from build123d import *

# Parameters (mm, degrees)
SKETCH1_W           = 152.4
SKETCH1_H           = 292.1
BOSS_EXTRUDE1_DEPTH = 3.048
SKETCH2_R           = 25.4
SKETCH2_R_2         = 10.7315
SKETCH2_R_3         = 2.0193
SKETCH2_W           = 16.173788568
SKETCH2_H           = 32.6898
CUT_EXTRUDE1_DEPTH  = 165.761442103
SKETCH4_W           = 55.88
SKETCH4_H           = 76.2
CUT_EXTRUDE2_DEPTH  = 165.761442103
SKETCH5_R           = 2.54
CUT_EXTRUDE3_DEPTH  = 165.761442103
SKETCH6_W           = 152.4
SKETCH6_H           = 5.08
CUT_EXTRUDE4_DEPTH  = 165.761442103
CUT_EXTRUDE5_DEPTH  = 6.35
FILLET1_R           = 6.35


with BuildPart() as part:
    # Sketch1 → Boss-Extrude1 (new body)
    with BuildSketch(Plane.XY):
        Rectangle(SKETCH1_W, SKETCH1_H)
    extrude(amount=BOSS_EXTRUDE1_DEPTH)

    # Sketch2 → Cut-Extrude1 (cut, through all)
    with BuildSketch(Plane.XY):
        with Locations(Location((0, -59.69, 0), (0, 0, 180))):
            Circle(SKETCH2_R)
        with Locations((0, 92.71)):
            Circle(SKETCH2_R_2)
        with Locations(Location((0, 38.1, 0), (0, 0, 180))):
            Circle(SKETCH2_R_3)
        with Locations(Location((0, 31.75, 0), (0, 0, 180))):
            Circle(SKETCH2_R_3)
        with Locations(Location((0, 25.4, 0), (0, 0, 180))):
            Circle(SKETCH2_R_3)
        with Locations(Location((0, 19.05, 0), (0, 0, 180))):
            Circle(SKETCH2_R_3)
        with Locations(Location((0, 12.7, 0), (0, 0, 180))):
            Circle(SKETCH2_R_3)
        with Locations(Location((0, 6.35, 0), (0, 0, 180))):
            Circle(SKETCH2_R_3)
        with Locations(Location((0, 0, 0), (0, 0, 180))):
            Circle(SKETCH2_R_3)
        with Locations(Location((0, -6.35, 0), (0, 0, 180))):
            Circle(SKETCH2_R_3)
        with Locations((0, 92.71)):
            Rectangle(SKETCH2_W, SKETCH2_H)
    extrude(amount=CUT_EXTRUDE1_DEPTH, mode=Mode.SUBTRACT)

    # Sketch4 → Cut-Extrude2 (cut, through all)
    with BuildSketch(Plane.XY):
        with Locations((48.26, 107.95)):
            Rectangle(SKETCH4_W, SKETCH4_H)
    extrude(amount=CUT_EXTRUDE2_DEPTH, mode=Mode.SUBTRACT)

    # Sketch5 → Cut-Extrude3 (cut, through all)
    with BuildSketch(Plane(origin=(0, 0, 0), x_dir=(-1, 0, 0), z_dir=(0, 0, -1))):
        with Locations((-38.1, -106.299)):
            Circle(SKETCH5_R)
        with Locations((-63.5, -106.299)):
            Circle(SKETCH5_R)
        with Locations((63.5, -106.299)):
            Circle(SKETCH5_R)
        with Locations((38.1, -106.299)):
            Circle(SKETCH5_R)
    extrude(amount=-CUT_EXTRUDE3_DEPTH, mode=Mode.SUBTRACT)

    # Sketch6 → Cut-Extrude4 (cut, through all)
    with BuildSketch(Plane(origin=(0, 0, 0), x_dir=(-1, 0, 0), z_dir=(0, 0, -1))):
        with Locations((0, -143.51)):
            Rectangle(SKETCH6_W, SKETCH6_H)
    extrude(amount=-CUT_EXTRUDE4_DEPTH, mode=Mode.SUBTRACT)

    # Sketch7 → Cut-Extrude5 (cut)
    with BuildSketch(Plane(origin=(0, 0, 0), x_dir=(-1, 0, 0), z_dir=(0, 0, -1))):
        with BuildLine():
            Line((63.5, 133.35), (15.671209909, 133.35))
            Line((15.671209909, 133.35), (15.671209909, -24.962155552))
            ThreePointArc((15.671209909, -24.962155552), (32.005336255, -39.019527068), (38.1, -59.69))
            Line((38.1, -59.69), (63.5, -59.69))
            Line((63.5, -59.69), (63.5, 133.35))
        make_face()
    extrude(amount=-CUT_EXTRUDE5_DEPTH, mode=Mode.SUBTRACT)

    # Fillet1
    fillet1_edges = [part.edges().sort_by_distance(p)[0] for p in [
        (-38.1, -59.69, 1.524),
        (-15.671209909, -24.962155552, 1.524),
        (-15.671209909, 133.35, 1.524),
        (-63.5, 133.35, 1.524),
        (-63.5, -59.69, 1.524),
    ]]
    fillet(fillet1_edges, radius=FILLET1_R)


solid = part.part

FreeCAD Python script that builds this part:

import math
import FreeCAD as App
import Part
import Sketcher
Q = App.Units.Quantity


def edges_at(feature, points):
    """Names of the edges that pass closest to the given points."""
    edges = feature.Shape.Edges
    near = lambda p: min(range(len(edges)), key=lambda i: edges[i].distToShape(Part.Vertex(*p))[0])
    return sorted({f"Edge{near(p) + 1}" for p in points})

doc = App.newDocument("Part")
params = doc.addObject("Spreadsheet::Sheet", "Params")
for row, (alias, value) in enumerate([
    ("sketch1_width", "6 in"),
    ("sketch1_height", "11.5 in"),
    ("pad1_length", "0.12 in"),
    ("sketch2_diameter", "2 in"),
    ("sketch2_diameter2", "0.159 in"),
    ("sketch3_height", "3 in"),
    ("sketch3_width", "2.2 in"),
    ("sketch4_diameter", "0.2 in"),
    ("sketch5_width", "6 in"),
    ("sketch5_height", "0.2 in"),
    ("sketch6_radius", "1.5 in"),
    ("sketch6_width", "1 in"),
    ("sketch6_height", "7.6 in"),
    ("pocket5_length", "0.25 in"),
    ("fillet_radius", "0.25 in"),
], start=1):
    params.set(f"A{row}", alias)
    params.set(f"B{row}", "=" + value)
    params.setAlias(f"B{row}", alias)

body = doc.addObject("PartDesign::Body", "Body")

sketch1 = body.newObject("Sketcher::SketchObject", "Sketch")
sketch1.AttachmentSupport = (doc.getObject("XY_Plane"), [""])
sketch1.MapMode = "FlatFace"
sketch1.addGeometry([
    Part.LineSegment(App.Vector(-76.2, 146.05, 0), App.Vector(-76.2, -146.05, 0)),
    Part.LineSegment(App.Vector(-76.2, -146.05, 0), App.Vector(76.2, -146.05, 0)),
    Part.LineSegment(App.Vector(76.2, -146.05, 0), App.Vector(76.2, 146.05, 0)),
    Part.LineSegment(App.Vector(76.2, 146.05, 0), App.Vector(-76.2, 146.05, 0)),
], False)
sketch1.addConstraint([
    Sketcher.Constraint("Coincident", 0, 2, 1, 1),
    Sketcher.Constraint("Coincident", 1, 2, 2, 1),
    Sketcher.Constraint("Coincident", 2, 2, 3, 1),
    Sketcher.Constraint("Coincident", 3, 2, 0, 1),
    Sketcher.Constraint("Vertical", 0),
    Sketcher.Constraint("Horizontal", 1),
    Sketcher.Constraint("Vertical", 2),
    Sketcher.Constraint("Horizontal", 3),
    Sketcher.Constraint("Symmetric", 0, 2, 2, 2, -1, 1),
    Sketcher.Constraint("DistanceX", 1, 1, 1, 2, Q("6 in")),
    Sketcher.Constraint("DistanceY", 0, 2, 0, 1, Q("11.5 in")),
])
sketch1.setExpression("Constraints[9]", "Params.sketch1_width")
sketch1.setExpression("Constraints[10]", "Params.sketch1_height")
pad1 = body.newObject("PartDesign::Pad", "Pad")
pad1.Profile = sketch1
pad1.setExpression("Length", "Params.pad1_length")

sketch2 = body.newObject("Sketcher::SketchObject", "Sketch001")
sketch2.AttachmentSupport = (doc.getObject("XY_Plane"), [""])
sketch2.MapMode = "FlatFace"
sketch2.addGeometry([
    Part.Circle(App.Vector(0, -59.69, 0), App.Vector(0, 0, 1), 25.4),
    Part.ArcOfCircle(Part.Circle(App.Vector(0, 92.71, 0), App.Vector(0, 0, 1), 10.7315), math.radians(-41.099767), math.radians(41.099767)),
    Part.LineSegment(App.Vector(8.086894, 99.76459, 0), App.Vector(8.086894, 109.0549, 0)),
    Part.LineSegment(App.Vector(8.086894, 109.0549, 0), App.Vector(-8.086894, 109.0549, 0)),
    Part.LineSegment(App.Vector(-8.086894, 109.0549, 0), App.Vector(-8.086894, 99.76459, 0)),
    Part.ArcOfCircle(Part.Circle(App.Vector(0, 92.71, 0), App.Vector(0, 0, 1), 10.7315), math.radians(138.900233), math.radians(221.099767)),
    Part.LineSegment(App.Vector(-8.086894, 85.65541, 0), App.Vector(-8.086894, 76.3651, 0)),
    Part.LineSegment(App.Vector(-8.086894, 76.3651, 0), App.Vector(8.086894, 76.3651, 0)),
    Part.LineSegment(App.Vector(8.086894, 76.3651, 0), App.Vector(8.086894, 85.65541, 0)),
    Part.Circle(App.Vector(0, 38.1, 0), App.Vector(0, 0, 1), 2.0193),
    Part.Circle(App.Vector(0, 31.75, 0), App.Vector(0, 0, 1), 2.0193),
    Part.Circle(App.Vector(0, 25.4, 0), App.Vector(0, 0, 1), 2.0193),
    Part.Circle(App.Vector(0, 19.05, 0), App.Vector(0, 0, 1), 2.0193),
    Part.Circle(App.Vector(0, 12.7, 0), App.Vector(0, 0, 1), 2.0193),
    Part.Circle(App.Vector(0, 6.35, 0), App.Vector(0, 0, 1), 2.0193),
    Part.Circle(App.Vector(0, 0, 0), App.Vector(0, 0, 1), 2.0193),
    Part.Circle(App.Vector(0, -6.35, 0), App.Vector(0, 0, 1), 2.0193),
], False)
sketch2.addConstraint([
    Sketcher.Constraint("Coincident", 1, 2, 2, 1),
    Sketcher.Constraint("Coincident", 2, 2, 3, 1),
    Sketcher.Constraint("Coincident", 3, 2, 4, 1),
    Sketcher.Constraint("Coincident", 4, 2, 5, 1),
    Sketcher.Constraint("Coincident", 5, 2, 6, 1),
    Sketcher.Constraint("Coincident", 6, 2, 7, 1),
    Sketcher.Constraint("Coincident", 7, 2, 8, 1),
    Sketcher.Constraint("Coincident", 8, 2, 1, 1),
    Sketcher.Constraint("Vertical", 2),
    Sketcher.Constraint("Horizontal", 3),
    Sketcher.Constraint("Vertical", 4),
    Sketcher.Constraint("Vertical", 6),
    Sketcher.Constraint("Horizontal", 7),
    Sketcher.Constraint("Vertical", 8),
    Sketcher.Constraint("Coincident", 15, 3, -1, 1),
    Sketcher.Constraint("Coincident", 5, 3, 1, 3),
    Sketcher.Constraint("Equal", 1, 5),
    Sketcher.Constraint("Equal", 9, 10),
    Sketcher.Constraint("Equal", 10, 11),
    Sketcher.Constraint("Equal", 11, 12),
    Sketcher.Constraint("Equal", 12, 13),
    Sketcher.Constraint("Equal", 13, 14),
    Sketcher.Constraint("Equal", 14, 15),
    Sketcher.Constraint("Equal", 15, 16),
    Sketcher.Constraint("Symmetric", 14, 3, 16, 3, -1, 1),
    Sketcher.Constraint("Symmetric", 1, 2, 4, 2, -2),
    Sketcher.Constraint("PointOnObject", 0, 3, -2),
    Sketcher.Constraint("PointOnObject", 9, 3, -2),
    Sketcher.Constraint("PointOnObject", 10, 3, -2),
    Sketcher.Constraint("PointOnObject", 11, 3, -2),
    Sketcher.Constraint("PointOnObject", 12, 3, -2),
    Sketcher.Constraint("PointOnObject", 13, 3, -2),
    Sketcher.Constraint("PointOnObject", 14, 3, -2),
    Sketcher.Constraint("Horizontal", 5, 2, 8, 2),
    Sketcher.Constraint("Vertical", 4, 2, 5, 2),
    Sketcher.Constraint("Equal", 4, 6),
    Sketcher.Constraint("Diameter", 0, Q("2 in")),
    Sketcher.Constraint("Diameter", 9, Q("0.159 in")),
    Sketcher.Constraint("DistanceY", -1, 1, 11, 3, Q("1 in")),
    Sketcher.Constraint("DistanceY", 0, 3, 1, 3, Q("6 in")),
    Sketcher.Constraint("DistanceY", 13, 3, 9, 3, Q("1 in")),
    Sketcher.Constraint("DistanceY", 14, 3, 10, 3, Q("1 in")),
    Sketcher.Constraint("DistanceY", 16, 3, 12, 3, Q("1 in")),
    Sketcher.Constraint("DistanceY", -1, 1, 9, 3, Q("1.5 in")),
    Sketcher.Constraint("Radius", 1, Q("0.4225 in")),
    Sketcher.Constraint("DistanceY", 10, 3, 1, 3, Q("2.4 in")),
    Sketcher.Constraint("DistanceY", 12, 3, 10, 3, Q("0.5 in")),
    Sketcher.Constraint("DistanceY", -1, 1, 2, 2, Q("4.2935 in")),
    Sketcher.Constraint("DistanceX", 3, 2, 3, 1, 16.173789),
])
sketch2.setExpression("Constraints[36]", "Params.sketch2_diameter")
sketch2.setExpression("Constraints[37]", "Params.sketch2_diameter2")
pocket1 = body.newObject("PartDesign::Pocket", "Pocket")
pocket1.Profile = sketch2
pocket1.Type = "ThroughAll"
pocket1.Reversed = True

sketch3 = body.newObject("Sketcher::SketchObject", "Sketch002")
sketch3.AttachmentSupport = (doc.getObject("XY_Plane"), [""])
sketch3.MapMode = "FlatFace"
sketch3.addGeometry([
    Part.LineSegment(App.Vector(20.32, 146.05, 0), App.Vector(20.32, 69.85, 0)),
    Part.LineSegment(App.Vector(20.32, 69.85, 0), App.Vector(76.2, 69.85, 0)),
    Part.LineSegment(App.Vector(76.2, 69.85, 0), App.Vector(76.2, 146.05, 0)),
    Part.LineSegment(App.Vector(76.2, 146.05, 0), App.Vector(20.32, 146.05, 0)),
], False)
sketch3.addConstraint([
    Sketcher.Constraint("Coincident", 0, 2, 1, 1),
    Sketcher.Constraint("Coincident", 1, 2, 2, 1),
    Sketcher.Constraint("Coincident", 2, 2, 3, 1),
    Sketcher.Constraint("Coincident", 3, 2, 0, 1),
    Sketcher.Constraint("Vertical", 0),
    Sketcher.Constraint("Horizontal", 1),
    Sketcher.Constraint("Vertical", 2),
    Sketcher.Constraint("Horizontal", 3),
    Sketcher.Constraint("DistanceY", 0, 2, 0, 1, Q("3 in")),
    Sketcher.Constraint("DistanceX", 1, 1, 1, 2, Q("2.2 in")),
    Sketcher.Constraint("DistanceX", -1, 1, 1, 2, Q("3 in")),
    Sketcher.Constraint("DistanceY", -1, 1, 0, 2, Q("2.75 in")),
])
sketch3.setExpression("Constraints[8]", "Params.sketch3_height")
sketch3.setExpression("Constraints[9]", "Params.sketch3_width")
pocket2 = body.newObject("PartDesign::Pocket", "Pocket001")
pocket2.Profile = sketch3
pocket2.Type = "ThroughAll"
pocket2.Reversed = True

sketch4 = body.newObject("Sketcher::SketchObject", "Sketch003")
sketch4.AttachmentSupport = (doc.getObject("XY_Plane"), [""])
sketch4.MapMode = "FlatFace"
sketch4.addGeometry([
    Part.Circle(App.Vector(38.1, -106.299, 0), App.Vector(0, 0, 1), 2.54),
    Part.Circle(App.Vector(63.5, -106.299, 0), App.Vector(0, 0, 1), 2.54),
    Part.Circle(App.Vector(-63.5, -106.299, 0), App.Vector(0, 0, 1), 2.54),
    Part.Circle(App.Vector(-38.1, -106.299, 0), App.Vector(0, 0, 1), 2.54),
], False)
sketch4.addConstraint([
    Sketcher.Constraint("Equal", 0, 1),
    Sketcher.Constraint("Equal", 1, 2),
    Sketcher.Constraint("Equal", 2, 3),
    Sketcher.Constraint("Symmetric", 1, 3, 2, 3, -2),
    Sketcher.Constraint("Symmetric", 0, 3, 3, 3, -2),
    Sketcher.Constraint("Horizontal", 0, 3, 1, 3),
    Sketcher.Constraint("Diameter", 0, Q("0.2 in")),
    Sketcher.Constraint("DistanceX", 0, 3, 1, 3, Q("1 in")),
    Sketcher.Constraint("DistanceX", 2, 3, 0, 3, Q("4 in")),
    Sketcher.Constraint("DistanceY", 0, 3, -1, 1, Q("4.185 in")),
])
sketch4.setExpression("Constraints[6]", "Params.sketch4_diameter")
pocket3 = body.newObject("PartDesign::Pocket", "Pocket002")
pocket3.Profile = sketch4
pocket3.Type = "ThroughAll"
pocket3.Reversed = True

sketch5 = body.newObject("Sketcher::SketchObject", "Sketch004")
sketch5.AttachmentSupport = (doc.getObject("XY_Plane"), [""])
sketch5.MapMode = "FlatFace"
sketch5.addGeometry([
    Part.LineSegment(App.Vector(76.2, -140.97, 0), App.Vector(76.2, -146.05, 0)),
    Part.LineSegment(App.Vector(76.2, -146.05, 0), App.Vector(-76.2, -146.05, 0)),
    Part.LineSegment(App.Vector(-76.2, -146.05, 0), App.Vector(-76.2, -140.97, 0)),
    Part.LineSegment(App.Vector(-76.2, -140.97, 0), App.Vector(76.2, -140.97, 0)),
], False)
sketch5.addConstraint([
    Sketcher.Constraint("Coincident", 0, 2, 1, 1),
    Sketcher.Constraint("Coincident", 1, 2, 2, 1),
    Sketcher.Constraint("Coincident", 2, 2, 3, 1),
    Sketcher.Constraint("Coincident", 3, 2, 0, 1),
    Sketcher.Constraint("Vertical", 0),
    Sketcher.Constraint("Horizontal", 1),
    Sketcher.Constraint("Vertical", 2),
    Sketcher.Constraint("Horizontal", 3),
    Sketcher.Constraint("DistanceX", 1, 2, 1, 1, Q("6 in")),
    Sketcher.Constraint("DistanceY", 0, 2, 0, 1, Q("0.2 in")),
    Sketcher.Constraint("DistanceX", -1, 1, 0, 2, Q("3 in")),
    Sketcher.Constraint("DistanceY", 0, 2, -1, 1, Q("5.75 in")),
])
sketch5.setExpression("Constraints[8]", "Params.sketch5_width")
sketch5.setExpression("Constraints[9]", "Params.sketch5_height")
pocket4 = body.newObject("PartDesign::Pocket", "Pocket003")
pocket4.Profile = sketch5
pocket4.Type = "ThroughAll"
pocket4.Reversed = True

sketch6 = body.newObject("Sketcher::SketchObject", "Sketch005")
sketch6.AttachmentSupport = (doc.getObject("XY_Plane"), [""])
sketch6.MapMode = "FlatFace"
sketch6.addGeometry([
    Part.LineSegment(App.Vector(-63.5, 133.35, 0), App.Vector(-15.67121, 133.35, 0)),
    Part.LineSegment(App.Vector(-15.67121, 133.35, 0), App.Vector(-15.67121, -24.962156, 0)),
    Part.ArcOfCircle(Part.Circle(App.Vector(0, -59.69, 0), App.Vector(0, 0, 1), 38.1), math.radians(114.287647), math.radians(180)),
    Part.LineSegment(App.Vector(-38.1, -59.69, 0), App.Vector(-63.5, -59.69, 0)),
    Part.LineSegment(App.Vector(-63.5, -59.69, 0), App.Vector(-63.5, 133.35, 0)),
], False)
sketch6.addConstraint([
    Sketcher.Constraint("Coincident", 0, 2, 1, 1),
    Sketcher.Constraint("Coincident", 1, 2, 2, 1),
    Sketcher.Constraint("Coincident", 2, 2, 3, 1),
    Sketcher.Constraint("Coincident", 3, 2, 4, 1),
    Sketcher.Constraint("Coincident", 4, 2, 0, 1),
    Sketcher.Constraint("Horizontal", 0),
    Sketcher.Constraint("Vertical", 1),
    Sketcher.Constraint("Horizontal", 3),
    Sketcher.Constraint("Vertical", 4),
    Sketcher.Constraint("PointOnObject", 2, 3, -2),
    Sketcher.Constraint("Radius", 2, Q("1.5 in")),
    Sketcher.Constraint("DistanceX", 3, 2, 3, 1, Q("1 in")),
    Sketcher.Constraint("DistanceY", 4, 1, 4, 2, Q("7.6 in")),
    Sketcher.Constraint("DistanceY", 2, 3, 0, 2, Q("7.6 in")),
    Sketcher.Constraint("DistanceY", 2, 3, -1, 1, Q("2.35 in")),
    Sketcher.Constraint("DistanceX", 0, 1, 0, 2, 47.82879),
])
sketch6.setExpression("Constraints[10]", "Params.sketch6_radius")
sketch6.setExpression("Constraints[11]", "Params.sketch6_width")
sketch6.setExpression("Constraints[12]", "Params.sketch6_height")
pocket5 = body.newObject("PartDesign::Pocket", "Pocket004")
pocket5.Profile = sketch6
pocket5.setExpression("Length", "Params.pocket5_length")
pocket5.Reversed = True
doc.recompute()

fillet = body.newObject("PartDesign::Fillet", "Fillet")
fillet.Base = (pocket5, edges_at(pocket5, [
    (-38.1, -59.69, 1.524),
    (-15.671, -24.962, 1.524),
    (-15.671, 133.35, 1.524),
    (-63.5, 133.35, 1.524),
    (-63.5, -59.69, 1.524),
]))
fillet.setExpression("Radius", "Params.fillet_radius")

doc.recompute()
